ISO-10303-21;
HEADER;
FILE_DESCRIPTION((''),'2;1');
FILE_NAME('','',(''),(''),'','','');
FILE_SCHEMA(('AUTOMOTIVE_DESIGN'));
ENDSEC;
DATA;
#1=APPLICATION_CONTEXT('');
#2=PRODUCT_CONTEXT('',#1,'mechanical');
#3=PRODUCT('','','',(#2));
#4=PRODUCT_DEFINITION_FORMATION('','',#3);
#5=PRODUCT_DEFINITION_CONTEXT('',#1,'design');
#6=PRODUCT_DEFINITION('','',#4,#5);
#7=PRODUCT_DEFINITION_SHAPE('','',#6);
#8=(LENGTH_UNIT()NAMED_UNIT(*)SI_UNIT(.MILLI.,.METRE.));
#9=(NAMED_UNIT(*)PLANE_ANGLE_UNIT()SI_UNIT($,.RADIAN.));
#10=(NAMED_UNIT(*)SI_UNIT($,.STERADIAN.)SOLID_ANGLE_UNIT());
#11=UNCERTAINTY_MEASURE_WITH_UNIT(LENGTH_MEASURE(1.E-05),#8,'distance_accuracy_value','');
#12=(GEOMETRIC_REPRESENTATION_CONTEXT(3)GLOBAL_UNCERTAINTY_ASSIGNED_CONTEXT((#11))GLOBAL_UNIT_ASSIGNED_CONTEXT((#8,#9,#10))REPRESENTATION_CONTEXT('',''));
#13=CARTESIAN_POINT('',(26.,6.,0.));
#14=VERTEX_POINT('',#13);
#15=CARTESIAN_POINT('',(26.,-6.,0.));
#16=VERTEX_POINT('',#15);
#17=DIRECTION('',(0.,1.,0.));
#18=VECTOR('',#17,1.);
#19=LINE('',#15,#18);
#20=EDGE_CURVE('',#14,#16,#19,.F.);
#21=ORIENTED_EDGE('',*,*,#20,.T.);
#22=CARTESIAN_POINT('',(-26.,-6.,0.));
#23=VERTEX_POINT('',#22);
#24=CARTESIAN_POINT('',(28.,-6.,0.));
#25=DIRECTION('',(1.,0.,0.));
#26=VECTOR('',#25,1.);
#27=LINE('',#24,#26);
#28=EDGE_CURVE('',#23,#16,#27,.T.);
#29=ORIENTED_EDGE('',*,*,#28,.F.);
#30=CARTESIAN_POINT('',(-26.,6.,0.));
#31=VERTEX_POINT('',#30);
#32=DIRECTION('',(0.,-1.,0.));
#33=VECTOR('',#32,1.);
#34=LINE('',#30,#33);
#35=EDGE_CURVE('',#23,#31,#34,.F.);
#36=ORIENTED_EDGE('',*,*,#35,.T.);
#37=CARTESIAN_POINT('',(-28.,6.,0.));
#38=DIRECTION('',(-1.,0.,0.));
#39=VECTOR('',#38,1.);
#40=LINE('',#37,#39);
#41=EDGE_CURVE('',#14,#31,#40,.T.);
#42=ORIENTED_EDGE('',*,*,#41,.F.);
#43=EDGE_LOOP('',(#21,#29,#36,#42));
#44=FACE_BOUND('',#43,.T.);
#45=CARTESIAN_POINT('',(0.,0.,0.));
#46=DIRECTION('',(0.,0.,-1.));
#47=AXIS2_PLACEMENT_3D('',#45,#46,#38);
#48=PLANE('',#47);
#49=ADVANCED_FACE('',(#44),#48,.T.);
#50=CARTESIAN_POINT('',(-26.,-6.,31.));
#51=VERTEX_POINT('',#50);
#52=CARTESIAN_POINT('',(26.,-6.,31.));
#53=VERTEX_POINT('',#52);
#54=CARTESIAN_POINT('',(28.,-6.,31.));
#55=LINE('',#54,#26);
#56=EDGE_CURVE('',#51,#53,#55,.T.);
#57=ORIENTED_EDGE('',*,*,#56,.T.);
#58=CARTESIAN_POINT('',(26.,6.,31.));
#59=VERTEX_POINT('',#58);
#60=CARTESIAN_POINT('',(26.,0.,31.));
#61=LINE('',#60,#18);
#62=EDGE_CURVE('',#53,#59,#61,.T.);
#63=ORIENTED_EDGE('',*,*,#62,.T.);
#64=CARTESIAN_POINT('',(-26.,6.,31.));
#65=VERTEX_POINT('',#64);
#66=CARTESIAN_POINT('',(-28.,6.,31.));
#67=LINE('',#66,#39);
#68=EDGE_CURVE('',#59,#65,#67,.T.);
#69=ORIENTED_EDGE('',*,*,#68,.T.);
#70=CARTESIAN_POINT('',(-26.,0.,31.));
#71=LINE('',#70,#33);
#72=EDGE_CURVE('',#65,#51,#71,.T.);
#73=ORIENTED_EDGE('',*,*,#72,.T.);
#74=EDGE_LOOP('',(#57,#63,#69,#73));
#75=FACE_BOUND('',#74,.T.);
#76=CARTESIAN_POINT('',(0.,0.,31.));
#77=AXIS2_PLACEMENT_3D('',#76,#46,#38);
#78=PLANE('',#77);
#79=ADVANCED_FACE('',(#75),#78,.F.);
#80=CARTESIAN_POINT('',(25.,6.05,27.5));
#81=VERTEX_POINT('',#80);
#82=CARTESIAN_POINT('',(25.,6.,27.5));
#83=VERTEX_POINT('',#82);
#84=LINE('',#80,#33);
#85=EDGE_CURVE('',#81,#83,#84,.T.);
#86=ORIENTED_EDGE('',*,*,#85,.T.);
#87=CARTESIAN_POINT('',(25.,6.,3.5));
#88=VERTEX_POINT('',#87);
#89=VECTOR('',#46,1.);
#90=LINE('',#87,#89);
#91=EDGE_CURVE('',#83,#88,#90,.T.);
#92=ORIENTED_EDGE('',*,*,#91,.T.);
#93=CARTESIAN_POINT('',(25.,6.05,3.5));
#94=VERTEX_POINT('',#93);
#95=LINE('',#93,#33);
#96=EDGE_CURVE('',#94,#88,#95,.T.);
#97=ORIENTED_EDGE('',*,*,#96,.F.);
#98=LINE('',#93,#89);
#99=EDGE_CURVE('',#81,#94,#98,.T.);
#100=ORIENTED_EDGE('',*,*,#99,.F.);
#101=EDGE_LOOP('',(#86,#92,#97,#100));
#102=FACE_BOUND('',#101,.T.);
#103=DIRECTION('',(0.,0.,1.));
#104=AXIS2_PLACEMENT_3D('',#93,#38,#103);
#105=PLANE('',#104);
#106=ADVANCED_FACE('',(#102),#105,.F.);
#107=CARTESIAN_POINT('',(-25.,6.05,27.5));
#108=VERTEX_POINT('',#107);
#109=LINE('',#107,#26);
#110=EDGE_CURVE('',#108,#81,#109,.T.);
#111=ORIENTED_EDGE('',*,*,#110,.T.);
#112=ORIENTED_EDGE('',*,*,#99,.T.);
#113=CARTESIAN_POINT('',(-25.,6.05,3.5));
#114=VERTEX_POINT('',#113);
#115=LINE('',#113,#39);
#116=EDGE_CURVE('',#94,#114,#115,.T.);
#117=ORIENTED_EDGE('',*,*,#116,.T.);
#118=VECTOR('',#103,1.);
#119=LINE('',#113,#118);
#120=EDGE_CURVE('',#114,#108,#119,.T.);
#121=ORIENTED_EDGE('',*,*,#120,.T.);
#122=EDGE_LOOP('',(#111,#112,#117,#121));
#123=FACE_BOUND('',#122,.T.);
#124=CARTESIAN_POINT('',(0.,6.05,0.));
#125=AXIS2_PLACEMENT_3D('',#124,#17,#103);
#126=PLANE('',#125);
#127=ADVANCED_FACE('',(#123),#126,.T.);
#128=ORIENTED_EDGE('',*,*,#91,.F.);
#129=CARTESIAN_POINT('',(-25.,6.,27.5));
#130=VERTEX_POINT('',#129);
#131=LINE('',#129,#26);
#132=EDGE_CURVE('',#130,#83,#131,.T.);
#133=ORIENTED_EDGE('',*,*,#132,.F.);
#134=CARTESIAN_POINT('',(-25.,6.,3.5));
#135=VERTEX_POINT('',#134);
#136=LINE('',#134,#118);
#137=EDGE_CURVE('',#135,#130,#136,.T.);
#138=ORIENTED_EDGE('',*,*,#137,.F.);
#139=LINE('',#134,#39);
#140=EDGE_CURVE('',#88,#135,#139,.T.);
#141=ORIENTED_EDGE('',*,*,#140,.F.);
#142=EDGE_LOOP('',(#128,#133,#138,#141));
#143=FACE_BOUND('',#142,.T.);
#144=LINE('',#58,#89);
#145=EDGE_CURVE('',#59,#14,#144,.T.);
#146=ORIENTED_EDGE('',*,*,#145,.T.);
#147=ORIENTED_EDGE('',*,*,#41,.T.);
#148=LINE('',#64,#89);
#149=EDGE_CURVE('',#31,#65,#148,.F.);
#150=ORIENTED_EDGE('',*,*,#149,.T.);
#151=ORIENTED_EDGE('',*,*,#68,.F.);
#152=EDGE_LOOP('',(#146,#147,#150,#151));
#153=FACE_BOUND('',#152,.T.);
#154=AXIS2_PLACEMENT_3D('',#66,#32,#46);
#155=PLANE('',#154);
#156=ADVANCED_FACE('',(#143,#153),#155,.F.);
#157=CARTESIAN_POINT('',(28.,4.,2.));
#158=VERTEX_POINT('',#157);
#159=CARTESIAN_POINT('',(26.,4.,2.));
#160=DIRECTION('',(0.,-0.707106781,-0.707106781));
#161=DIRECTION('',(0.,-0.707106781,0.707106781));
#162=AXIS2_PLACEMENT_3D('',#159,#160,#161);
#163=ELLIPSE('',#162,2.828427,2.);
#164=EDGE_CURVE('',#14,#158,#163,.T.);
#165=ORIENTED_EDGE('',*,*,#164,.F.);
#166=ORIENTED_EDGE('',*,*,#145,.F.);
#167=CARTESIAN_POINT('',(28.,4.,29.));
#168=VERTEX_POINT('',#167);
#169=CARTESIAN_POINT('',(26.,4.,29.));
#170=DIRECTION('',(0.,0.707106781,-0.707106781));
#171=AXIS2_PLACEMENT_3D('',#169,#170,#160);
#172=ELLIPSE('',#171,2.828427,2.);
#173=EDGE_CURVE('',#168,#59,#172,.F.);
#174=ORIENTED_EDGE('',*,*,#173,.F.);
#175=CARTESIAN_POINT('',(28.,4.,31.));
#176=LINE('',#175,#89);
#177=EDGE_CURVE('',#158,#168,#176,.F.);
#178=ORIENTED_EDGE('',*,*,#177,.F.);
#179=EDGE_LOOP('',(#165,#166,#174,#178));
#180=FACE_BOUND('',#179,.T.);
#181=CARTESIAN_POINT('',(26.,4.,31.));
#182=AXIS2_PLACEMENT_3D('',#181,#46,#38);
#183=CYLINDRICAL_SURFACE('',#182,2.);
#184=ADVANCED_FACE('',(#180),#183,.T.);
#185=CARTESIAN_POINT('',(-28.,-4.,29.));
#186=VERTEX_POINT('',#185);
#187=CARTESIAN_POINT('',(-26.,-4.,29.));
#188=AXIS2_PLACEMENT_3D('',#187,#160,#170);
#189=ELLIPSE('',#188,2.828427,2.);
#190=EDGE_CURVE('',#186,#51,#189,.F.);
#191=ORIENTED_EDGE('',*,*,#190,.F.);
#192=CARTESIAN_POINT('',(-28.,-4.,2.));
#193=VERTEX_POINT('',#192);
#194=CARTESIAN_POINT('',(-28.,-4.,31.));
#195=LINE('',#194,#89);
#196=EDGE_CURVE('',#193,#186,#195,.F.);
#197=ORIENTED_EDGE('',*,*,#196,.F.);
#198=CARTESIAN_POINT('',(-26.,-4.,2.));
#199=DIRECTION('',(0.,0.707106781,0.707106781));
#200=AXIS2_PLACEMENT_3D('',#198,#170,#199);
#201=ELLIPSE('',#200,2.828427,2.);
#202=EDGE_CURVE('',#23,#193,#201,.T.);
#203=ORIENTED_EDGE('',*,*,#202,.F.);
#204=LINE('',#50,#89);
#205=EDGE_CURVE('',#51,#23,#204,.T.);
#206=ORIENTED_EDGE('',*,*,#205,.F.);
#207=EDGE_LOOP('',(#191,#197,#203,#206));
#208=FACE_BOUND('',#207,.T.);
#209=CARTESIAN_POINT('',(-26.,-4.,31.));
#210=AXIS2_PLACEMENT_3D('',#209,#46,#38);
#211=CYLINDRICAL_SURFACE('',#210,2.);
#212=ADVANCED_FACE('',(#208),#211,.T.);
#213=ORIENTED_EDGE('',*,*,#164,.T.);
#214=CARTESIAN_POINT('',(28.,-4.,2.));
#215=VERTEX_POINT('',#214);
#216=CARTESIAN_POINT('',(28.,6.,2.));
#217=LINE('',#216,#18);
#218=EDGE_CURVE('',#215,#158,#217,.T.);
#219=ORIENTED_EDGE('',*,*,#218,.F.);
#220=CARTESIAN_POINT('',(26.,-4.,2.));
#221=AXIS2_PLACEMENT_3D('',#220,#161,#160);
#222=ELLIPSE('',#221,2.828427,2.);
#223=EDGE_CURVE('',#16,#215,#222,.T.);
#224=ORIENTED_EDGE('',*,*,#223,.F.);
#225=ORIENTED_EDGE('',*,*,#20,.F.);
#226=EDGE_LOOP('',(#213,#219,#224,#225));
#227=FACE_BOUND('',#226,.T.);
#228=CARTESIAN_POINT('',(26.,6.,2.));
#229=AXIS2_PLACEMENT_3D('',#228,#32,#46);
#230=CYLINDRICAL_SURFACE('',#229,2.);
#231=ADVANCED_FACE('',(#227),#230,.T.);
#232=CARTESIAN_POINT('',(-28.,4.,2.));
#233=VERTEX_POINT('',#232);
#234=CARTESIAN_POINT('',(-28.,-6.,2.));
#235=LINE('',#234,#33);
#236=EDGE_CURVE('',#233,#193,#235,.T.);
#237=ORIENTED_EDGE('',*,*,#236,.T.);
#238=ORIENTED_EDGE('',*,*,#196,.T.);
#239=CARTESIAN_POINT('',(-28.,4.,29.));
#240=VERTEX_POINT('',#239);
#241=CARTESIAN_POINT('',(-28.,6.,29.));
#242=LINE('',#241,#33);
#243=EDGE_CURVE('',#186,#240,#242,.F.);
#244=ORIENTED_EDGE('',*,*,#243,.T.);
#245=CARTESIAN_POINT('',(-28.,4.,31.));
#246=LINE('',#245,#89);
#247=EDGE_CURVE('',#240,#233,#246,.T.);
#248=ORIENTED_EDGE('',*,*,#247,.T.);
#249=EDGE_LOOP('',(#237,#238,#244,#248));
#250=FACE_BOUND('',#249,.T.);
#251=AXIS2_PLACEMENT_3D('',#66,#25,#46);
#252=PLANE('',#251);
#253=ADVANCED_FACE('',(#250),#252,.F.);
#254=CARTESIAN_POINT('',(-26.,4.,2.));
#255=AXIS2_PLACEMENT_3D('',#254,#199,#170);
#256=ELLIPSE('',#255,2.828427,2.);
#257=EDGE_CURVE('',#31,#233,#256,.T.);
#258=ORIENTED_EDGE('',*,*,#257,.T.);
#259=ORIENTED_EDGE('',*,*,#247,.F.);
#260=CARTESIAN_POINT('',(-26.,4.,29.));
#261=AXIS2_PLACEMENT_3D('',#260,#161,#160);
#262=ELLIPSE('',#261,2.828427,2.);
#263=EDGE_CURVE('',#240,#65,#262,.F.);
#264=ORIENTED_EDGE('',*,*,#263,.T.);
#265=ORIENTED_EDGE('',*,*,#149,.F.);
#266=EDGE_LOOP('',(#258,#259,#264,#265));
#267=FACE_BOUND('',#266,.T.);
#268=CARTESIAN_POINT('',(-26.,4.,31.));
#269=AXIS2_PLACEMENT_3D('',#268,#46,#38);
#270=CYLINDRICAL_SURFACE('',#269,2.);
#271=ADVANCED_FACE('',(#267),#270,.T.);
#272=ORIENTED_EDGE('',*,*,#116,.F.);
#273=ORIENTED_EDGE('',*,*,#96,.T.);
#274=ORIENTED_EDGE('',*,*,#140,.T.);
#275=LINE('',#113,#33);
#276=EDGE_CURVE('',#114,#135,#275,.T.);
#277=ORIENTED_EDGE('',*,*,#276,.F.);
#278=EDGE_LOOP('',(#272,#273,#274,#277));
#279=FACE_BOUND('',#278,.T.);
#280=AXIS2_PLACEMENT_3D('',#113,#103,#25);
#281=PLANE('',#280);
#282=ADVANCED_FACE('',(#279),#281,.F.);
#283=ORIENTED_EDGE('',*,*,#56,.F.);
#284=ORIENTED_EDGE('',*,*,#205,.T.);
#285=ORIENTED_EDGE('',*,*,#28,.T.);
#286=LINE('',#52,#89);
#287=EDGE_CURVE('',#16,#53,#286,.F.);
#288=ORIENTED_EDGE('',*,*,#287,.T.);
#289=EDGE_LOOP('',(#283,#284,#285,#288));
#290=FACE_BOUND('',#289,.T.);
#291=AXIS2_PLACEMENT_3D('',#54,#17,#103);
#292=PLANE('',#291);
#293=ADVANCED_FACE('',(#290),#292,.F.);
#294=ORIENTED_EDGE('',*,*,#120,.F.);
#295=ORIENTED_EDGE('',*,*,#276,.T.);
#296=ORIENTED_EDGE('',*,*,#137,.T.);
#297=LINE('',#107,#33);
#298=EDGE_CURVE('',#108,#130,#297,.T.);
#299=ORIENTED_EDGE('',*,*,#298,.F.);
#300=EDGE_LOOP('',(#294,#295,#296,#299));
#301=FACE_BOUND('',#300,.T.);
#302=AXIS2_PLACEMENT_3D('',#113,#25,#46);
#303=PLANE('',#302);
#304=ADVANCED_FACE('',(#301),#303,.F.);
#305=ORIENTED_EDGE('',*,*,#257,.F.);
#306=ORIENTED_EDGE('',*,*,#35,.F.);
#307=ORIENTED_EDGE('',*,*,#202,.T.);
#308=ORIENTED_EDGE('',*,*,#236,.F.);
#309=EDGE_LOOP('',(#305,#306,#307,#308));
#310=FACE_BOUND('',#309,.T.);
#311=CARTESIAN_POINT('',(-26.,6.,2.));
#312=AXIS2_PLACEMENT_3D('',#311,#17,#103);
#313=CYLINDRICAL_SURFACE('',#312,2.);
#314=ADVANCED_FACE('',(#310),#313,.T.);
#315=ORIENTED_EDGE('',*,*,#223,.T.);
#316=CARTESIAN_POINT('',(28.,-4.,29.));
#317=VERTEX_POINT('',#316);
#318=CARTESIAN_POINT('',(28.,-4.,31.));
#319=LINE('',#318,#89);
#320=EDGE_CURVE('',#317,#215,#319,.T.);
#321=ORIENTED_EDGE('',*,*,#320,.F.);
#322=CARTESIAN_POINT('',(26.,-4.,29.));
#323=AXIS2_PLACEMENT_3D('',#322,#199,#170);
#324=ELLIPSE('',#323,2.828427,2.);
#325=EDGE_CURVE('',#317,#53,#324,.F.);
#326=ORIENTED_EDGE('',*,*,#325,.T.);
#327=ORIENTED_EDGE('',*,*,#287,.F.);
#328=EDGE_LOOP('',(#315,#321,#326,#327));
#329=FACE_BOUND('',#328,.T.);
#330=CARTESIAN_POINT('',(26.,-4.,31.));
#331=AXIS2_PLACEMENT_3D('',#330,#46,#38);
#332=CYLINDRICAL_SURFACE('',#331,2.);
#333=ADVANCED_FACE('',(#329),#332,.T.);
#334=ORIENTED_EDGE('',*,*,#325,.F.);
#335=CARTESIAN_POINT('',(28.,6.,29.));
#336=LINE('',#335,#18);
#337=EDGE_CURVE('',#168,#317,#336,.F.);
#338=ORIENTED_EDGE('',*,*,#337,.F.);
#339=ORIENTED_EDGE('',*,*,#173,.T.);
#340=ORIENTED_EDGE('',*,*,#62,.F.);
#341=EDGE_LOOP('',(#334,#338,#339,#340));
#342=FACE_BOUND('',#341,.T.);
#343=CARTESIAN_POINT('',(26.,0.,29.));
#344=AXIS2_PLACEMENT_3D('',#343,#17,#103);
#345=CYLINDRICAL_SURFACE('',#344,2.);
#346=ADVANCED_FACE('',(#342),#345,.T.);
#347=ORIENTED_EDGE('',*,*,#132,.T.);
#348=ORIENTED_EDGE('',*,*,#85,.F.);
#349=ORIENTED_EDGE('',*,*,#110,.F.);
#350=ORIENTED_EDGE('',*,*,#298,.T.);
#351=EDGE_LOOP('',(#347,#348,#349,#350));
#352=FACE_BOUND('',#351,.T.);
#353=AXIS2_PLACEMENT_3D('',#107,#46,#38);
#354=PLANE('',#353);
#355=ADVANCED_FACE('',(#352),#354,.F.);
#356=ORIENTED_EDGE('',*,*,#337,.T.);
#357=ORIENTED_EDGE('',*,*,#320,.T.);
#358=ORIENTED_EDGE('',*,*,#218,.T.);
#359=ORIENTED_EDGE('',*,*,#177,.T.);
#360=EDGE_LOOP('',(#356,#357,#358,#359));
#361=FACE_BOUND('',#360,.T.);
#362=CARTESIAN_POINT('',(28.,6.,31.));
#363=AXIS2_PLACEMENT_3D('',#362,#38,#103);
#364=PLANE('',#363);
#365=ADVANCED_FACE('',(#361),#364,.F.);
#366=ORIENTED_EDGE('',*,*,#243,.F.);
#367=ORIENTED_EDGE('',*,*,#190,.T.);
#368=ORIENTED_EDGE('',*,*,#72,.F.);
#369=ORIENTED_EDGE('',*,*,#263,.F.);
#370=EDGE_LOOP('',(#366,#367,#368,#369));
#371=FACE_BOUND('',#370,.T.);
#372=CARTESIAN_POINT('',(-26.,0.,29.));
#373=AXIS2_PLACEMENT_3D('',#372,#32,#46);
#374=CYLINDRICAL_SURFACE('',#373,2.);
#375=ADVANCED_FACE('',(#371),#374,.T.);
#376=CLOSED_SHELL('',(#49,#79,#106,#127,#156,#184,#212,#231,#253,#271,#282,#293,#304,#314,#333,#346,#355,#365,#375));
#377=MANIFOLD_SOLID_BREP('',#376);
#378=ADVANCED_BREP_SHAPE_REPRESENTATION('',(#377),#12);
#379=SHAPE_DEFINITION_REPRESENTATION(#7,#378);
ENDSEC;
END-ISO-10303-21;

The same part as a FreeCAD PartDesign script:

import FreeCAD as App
import Part
import Sketcher

V = App.Vector


def edges_at(feature, points):
    """Names of the edges that pass closest to the given points."""
    edges = feature.Shape.Edges
    near = lambda p: min(range(len(edges)), key=lambda i: edges[i].distToShape(Part.Vertex(*p))[0])
    return sorted({f"Edge{near(p) + 1}" for p in points})


def add_polygon(sketch, points):
    """Adds a closed chain of lines whose ends are joined by coincident constraints."""
    first, n = sketch.GeometryCount, len(points)
    for a, b in zip(points, points[1:] + points[:1]):
        sketch.addGeometry(Part.LineSegment(App.Vector(*a, 0), App.Vector(*b, 0)), False)
    for i in range(n):
        sketch.addConstraint(Sketcher.Constraint("Coincident", first + i, 2, first + (i + 1) % n, 1))

doc = App.newDocument("Part")
body = doc.addObject("PartDesign::Body", "Body")

sketch1 = doc.addObject("Sketcher::SketchObject", "Sketch")
body.addObject(sketch1)
sketch1.AttachmentSupport = (doc.XY_Plane, [""])
sketch1.MapMode = "FlatFace"
add_polygon(sketch1, [(-28, 6), (-28, -6), (28, -6), (28, 6)])
sketch1.addConstraint([
    Sketcher.Constraint("Vertical", 0),
    Sketcher.Constraint("Horizontal", 1),
    Sketcher.Constraint("Vertical", 2),
    Sketcher.Constraint("Horizontal", 3),
    Sketcher.Constraint("Symmetric", 0, 2, 2, 2, -1, 1),
    Sketcher.Constraint("DistanceX", 1, 1, 1, 2, 56.0),
    Sketcher.Constraint("DistanceY", 0, 2, 0, 1, 12.0),
])
pad1 = doc.addObject("PartDesign::Pad", "Pad")
body.addObject(pad1)
pad1.Profile = sketch1
pad1.Length = 31

sketch2 = doc.addObject("Sketcher::SketchObject", "Sketch001")
body.addObject(sketch2)
sketch2.AttachmentSupport = (doc.XZ_Plane, [""])
sketch2.MapMode = "FlatFace"
sketch2.AttachmentOffset = App.Placement(V(0, 0, -6), App.Rotation())
add_polygon(sketch2, [(-25, 3.5), (-25, 27.5), (25, 27.5), (25, 3.5)])
sketch2.addConstraint([
    Sketcher.Constraint("Vertical", 0),
    Sketcher.Constraint("Horizontal", 1),
    Sketcher.Constraint("Vertical", 2),
    Sketcher.Constraint("Horizontal", 3),
    Sketcher.Constraint("DistanceX", 1, 1, 1, 2, 50.0),
    Sketcher.Constraint("DistanceY", 0, 1, 0, 2, 24.0),
    Sketcher.Constraint("DistanceX", 0, 2, -1, 1, 25.0),
    Sketcher.Constraint("DistanceY", -1, 1, 0, 2, 27.5),
])
pad2 = doc.addObject("PartDesign::Pad", "Pad001")
body.addObject(pad2)
pad2.Profile = sketch2
pad2.Length = 0.05
pad2.Reversed = True
doc.recompute()

fillet = doc.addObject("PartDesign::Fillet", "Fillet")
body.addObject(fillet)
fillet.Base = (pad2, edges_at(pad2, [
    (28, 0, 31),
    (28, 0, 0),
    (28, -6, 15.5),
    (28, 6, 15.5),
]))
fillet.Radius = 2
doc.recompute()

fillet2 = doc.addObject("PartDesign::Fillet", "Fillet001")
body.addObject(fillet2)
fillet2.Base = (fillet, edges_at(fillet, [
    (-28, 0, 31),
    (-28, 0, 0),
    (-28, -6, 15.5),
    (-28, 6, 15.5),
]))
fillet2.Radius = 2

doc.recompute()
